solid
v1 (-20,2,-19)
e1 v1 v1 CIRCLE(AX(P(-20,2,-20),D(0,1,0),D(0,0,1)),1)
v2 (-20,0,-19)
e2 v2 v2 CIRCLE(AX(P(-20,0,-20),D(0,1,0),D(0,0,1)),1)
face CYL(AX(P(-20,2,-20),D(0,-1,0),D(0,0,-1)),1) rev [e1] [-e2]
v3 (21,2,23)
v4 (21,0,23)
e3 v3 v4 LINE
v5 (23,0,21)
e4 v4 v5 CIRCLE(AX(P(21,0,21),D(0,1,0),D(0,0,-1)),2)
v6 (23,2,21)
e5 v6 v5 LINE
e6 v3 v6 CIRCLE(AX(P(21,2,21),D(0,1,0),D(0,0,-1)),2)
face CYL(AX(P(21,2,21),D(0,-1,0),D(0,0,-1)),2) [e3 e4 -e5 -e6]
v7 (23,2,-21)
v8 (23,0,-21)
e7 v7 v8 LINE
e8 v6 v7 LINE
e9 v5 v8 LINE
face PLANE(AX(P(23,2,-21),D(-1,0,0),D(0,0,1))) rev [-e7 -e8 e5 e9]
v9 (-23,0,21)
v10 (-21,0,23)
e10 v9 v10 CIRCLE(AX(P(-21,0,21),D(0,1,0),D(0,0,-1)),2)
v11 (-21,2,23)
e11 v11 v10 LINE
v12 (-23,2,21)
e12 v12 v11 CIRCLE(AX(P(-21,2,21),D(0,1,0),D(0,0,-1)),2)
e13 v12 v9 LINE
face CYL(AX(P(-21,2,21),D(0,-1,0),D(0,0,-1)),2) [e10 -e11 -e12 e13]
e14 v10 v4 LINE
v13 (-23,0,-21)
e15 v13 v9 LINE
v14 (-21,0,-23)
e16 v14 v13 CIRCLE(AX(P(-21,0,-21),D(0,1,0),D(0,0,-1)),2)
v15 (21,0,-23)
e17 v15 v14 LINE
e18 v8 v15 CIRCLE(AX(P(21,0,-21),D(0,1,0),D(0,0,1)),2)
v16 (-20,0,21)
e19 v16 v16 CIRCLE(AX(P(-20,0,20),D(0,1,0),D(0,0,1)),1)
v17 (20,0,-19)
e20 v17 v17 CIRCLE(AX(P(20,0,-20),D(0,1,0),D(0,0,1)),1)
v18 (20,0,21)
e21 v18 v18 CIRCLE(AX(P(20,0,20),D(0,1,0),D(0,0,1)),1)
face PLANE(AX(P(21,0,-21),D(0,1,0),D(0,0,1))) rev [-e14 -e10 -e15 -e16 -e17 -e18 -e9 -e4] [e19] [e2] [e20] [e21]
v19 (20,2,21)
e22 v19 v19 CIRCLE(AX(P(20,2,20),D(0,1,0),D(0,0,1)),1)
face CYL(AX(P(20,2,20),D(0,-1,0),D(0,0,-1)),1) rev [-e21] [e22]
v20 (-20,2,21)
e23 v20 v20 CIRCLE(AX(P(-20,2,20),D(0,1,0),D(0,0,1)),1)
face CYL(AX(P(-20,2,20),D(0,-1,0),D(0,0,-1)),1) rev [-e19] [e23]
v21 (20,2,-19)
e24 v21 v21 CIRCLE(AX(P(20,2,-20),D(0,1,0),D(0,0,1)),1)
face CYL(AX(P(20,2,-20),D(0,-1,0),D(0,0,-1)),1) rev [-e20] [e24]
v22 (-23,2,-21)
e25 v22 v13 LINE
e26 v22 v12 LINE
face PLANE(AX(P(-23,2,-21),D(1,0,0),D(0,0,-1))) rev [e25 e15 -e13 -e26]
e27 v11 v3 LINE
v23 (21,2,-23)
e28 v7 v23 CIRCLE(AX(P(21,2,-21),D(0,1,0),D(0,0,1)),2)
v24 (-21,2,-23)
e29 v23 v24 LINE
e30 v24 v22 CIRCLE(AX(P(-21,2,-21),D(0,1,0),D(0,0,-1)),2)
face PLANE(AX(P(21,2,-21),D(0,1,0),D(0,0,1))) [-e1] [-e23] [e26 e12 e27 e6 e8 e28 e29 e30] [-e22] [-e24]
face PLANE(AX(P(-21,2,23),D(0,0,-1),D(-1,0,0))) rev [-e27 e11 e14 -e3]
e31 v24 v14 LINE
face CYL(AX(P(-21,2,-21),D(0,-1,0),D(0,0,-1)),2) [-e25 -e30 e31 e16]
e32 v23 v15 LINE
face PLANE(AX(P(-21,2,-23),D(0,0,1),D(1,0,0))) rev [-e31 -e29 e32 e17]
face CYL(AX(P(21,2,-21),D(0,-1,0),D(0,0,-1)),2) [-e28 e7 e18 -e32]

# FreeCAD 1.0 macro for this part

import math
import FreeCAD as App
import Part
import Sketcher

V = App.Vector
Q = App.Units.Quantity

doc = App.newDocument("Part")
body = doc.addObject("PartDesign::Body", "Body")

sketch1 = body.newObject("Sketcher::SketchObject", "Sketch")
sketch1.AttachmentSupport = (doc.getObject("XZ_Plane"), [""])
sketch1.MapMode = "FlatFace"
sketch1.addGeometry([
    Part.LineSegment(V(21, -23, 0), V(-21, -23, 0)),
    Part.ArcOfCircle(Part.Circle(V(-21, -21, 0), V(0, 0, 1), 2), math.radians(-180), math.radians(-90)),
    Part.LineSegment(V(-23, -21, 0), V(-23, 21, 0)),
    Part.ArcOfCircle(Part.Circle(V(-21, 21, 0), V(0, 0, 1), 2), math.radians(90), math.radians(180)),
    Part.LineSegment(V(-21, 23, 0), V(21, 23, 0)),
    Part.ArcOfCircle(Part.Circle(V(21, 21, 0), V(0, 0, 1), 2), math.radians(0), math.radians(90)),
    Part.LineSegment(V(23, 21, 0), V(23, -21, 0)),
    Part.ArcOfCircle(Part.Circle(V(21, -21, 0), V(0, 0, 1), 2), math.radians(-90), math.radians(0)),
    Part.Circle(V(20, 20, 0), V(0, 0, 1), 1),
    Part.Circle(V(-20, 20, 0), V(0, 0, 1), 1),
    Part.Circle(V(20, -20, 0), V(0, 0, 1), 1),
    Part.Circle(V(-20, -20, 0), V(0, 0, 1), 1),
], False)
sketch1.addConstraint([
    Sketcher.Constraint("Tangent", 0, 2, 1, 2),
    Sketcher.Constraint("Tangent", 1, 1, 2, 1),
    Sketcher.Constraint("Tangent", 2, 2, 3, 2),
    Sketcher.Constraint("Tangent", 3, 1, 4, 1),
    Sketcher.Constraint("Tangent", 4, 2, 5, 2),
    Sketcher.Constraint("Tangent", 5, 1, 6, 1),
    Sketcher.Constraint("Tangent", 6, 2, 7, 2),
    Sketcher.Constraint("Tangent", 7, 1, 0, 1),
    Sketcher.Constraint("Horizontal", 0),
    Sketcher.Constraint("Vertical", 2),
    Sketcher.Constraint("Horizontal", 4),
    Sketcher.Constraint("Vertical", 6),
    Sketcher.Constraint("Equal", 1, 3),
    Sketcher.Constraint("Equal", 3, 5),
    Sketcher.Constraint("Equal", 5, 7),
    Sketcher.Constraint("Equal", 8, 9),
    Sketcher.Constraint("Equal", 9, 10),
    Sketcher.Constraint("Equal", 10, 11),
    Sketcher.Constraint("Symmetric", 1, 3, 5, 3, -1, 1),
    Sketcher.Constraint("Symmetric", 9, 3, 10, 3, -1, 1),
    Sketcher.Constraint("Symmetric", 8, 3, 11, 3, -1, 1),
    Sketcher.Constraint("Symmetric", 8, 3, 9, 3, -2),
    Sketcher.Constraint("Equal", 4, 2),
    Sketcher.Constraint("Diameter", 8, Q("2 mm")),
    Sketcher.Constraint("Radius", 1, Q("2 mm")),
    Sketcher.Constraint("DistanceX", 0, 2, 0, 1, Q("42 mm")),
    Sketcher.Constraint("DistanceX", -1, 1, 8, 3, Q("20 mm")),
    Sketcher.Constraint("DistanceY", -1, 1, 8, 3, Q("20 mm")),
])
pad1 = body.newObject("PartDesign::Pad", "Pad")
pad1.Profile = sketch1
pad1.Length = 2
pad1.Reversed = True

doc.recompute()
